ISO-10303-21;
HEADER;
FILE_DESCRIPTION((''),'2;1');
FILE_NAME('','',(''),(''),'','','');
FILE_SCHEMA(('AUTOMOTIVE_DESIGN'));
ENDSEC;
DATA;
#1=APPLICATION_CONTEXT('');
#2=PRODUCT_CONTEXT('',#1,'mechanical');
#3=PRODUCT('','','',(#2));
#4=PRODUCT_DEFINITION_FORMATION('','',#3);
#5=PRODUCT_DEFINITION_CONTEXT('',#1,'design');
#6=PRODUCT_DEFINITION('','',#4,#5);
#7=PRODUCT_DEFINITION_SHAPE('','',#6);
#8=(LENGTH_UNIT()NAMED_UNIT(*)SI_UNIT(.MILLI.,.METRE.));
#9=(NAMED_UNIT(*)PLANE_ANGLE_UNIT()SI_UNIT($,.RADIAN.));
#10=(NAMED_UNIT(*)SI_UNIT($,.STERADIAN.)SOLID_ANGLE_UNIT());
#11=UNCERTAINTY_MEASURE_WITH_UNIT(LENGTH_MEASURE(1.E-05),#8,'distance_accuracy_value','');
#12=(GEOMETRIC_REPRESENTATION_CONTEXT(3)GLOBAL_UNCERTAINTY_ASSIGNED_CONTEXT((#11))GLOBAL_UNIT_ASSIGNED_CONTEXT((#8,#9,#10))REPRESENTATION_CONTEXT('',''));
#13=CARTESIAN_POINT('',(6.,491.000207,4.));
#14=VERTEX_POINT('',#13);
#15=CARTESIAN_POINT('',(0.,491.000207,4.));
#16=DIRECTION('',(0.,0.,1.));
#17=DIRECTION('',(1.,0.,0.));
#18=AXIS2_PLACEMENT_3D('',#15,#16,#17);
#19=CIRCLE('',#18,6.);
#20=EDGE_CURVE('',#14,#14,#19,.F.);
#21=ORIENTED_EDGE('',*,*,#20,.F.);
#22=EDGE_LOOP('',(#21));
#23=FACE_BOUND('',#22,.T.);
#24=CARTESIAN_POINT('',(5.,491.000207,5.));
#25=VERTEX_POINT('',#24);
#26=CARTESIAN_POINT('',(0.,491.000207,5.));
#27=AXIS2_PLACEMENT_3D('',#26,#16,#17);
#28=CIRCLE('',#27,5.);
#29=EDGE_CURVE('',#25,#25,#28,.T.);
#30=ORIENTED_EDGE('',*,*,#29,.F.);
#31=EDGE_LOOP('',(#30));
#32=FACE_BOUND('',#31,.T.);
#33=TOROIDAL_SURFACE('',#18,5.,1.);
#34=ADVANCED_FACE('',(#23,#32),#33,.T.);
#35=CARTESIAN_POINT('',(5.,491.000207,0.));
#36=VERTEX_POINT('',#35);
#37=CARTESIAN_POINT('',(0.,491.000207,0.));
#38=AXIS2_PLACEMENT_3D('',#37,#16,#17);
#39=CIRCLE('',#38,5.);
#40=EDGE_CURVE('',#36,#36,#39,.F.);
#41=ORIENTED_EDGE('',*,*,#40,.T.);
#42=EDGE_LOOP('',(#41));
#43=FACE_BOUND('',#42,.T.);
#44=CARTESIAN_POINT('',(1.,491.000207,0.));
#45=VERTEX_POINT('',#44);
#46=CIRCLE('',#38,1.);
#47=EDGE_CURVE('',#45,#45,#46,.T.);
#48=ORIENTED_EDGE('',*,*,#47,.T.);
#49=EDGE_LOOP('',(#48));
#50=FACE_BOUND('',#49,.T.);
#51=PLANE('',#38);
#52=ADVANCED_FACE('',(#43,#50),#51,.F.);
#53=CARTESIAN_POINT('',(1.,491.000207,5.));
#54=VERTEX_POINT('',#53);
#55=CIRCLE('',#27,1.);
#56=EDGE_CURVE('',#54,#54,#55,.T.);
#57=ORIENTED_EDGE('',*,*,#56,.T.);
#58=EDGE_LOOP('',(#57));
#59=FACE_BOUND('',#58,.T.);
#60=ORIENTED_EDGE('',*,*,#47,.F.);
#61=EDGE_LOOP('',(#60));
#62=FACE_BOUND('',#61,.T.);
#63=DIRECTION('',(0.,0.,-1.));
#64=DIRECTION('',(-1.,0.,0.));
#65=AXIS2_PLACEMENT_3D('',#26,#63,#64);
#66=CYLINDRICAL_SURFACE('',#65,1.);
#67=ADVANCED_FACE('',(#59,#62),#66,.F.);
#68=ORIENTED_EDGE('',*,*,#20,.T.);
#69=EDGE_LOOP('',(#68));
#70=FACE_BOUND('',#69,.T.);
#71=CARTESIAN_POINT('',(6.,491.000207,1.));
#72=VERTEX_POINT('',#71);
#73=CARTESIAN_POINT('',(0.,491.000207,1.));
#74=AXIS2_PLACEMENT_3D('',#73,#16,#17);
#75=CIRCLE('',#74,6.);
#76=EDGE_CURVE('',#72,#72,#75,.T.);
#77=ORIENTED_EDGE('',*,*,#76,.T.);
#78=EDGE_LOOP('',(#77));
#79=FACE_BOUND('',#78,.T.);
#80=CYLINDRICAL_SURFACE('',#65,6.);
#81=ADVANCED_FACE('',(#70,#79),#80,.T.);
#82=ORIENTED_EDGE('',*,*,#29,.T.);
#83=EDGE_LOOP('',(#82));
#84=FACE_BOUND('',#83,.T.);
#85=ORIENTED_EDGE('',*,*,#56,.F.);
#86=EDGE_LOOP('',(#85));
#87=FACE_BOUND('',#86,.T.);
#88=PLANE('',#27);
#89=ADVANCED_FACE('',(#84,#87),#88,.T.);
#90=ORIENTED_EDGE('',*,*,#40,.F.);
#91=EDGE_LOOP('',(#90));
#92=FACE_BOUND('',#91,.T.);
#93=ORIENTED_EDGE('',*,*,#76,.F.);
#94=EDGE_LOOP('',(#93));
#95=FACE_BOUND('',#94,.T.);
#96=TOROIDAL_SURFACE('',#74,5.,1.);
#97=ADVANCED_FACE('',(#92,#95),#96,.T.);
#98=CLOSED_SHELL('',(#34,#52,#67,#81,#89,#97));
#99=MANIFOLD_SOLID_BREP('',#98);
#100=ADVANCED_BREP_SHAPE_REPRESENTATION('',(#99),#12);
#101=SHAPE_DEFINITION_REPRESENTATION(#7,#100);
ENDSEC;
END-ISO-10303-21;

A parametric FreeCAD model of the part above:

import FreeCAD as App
import Part
import Sketcher

V = App.Vector


def edges_at(feature, points):
    """Names of the edges that pass closest to the given points."""
    edges = feature.Shape.Edges
    near = lambda p: min(range(len(edges)), key=lambda i: edges[i].distToShape(Part.Vertex(*p))[0])
    return sorted({f"Edge{near(p) + 1}" for p in points})

doc = App.newDocument("Part")
body = doc.addObject("PartDesign::Body", "Body")

# Sketch on XY plane
sketch1 = body.newObject("Sketcher::SketchObject", "Sketch")
sketch1.AttachmentSupport = (doc.getObject("XY_Plane"), [""])
sketch1.MapMode = "FlatFace"
sketch1.addGeometry([
    Part.Circle(V(0, 491.000207, 0), V(0, 0, 1), 6),
    Part.Circle(V(0, 491.000207, 0), V(0, 0, 1), 1),
], False)
sketch1.addConstraint([
    Sketcher.Constraint("Coincident", 1, 3, 0, 3),
    Sketcher.Constraint("PointOnObject", 0, 3, -2),
    Sketcher.Constraint("Diameter", 0, 12.0),
    Sketcher.Constraint("Diameter", 1, 2.0),
    Sketcher.Constraint("DistanceY", -1, 1, 0, 3, 491.000207),
])
pad1 = body.newObject("PartDesign::Pad", "Pad")
pad1.Profile = sketch1
pad1.Length = 5
doc.recompute()

fillet = body.newObject("PartDesign::Fillet", "Fillet")
fillet.Base = (pad1, edges_at(pad1, [(-6, 491, 0), (-6, 491, 5)]))
fillet.Radius = 1

doc.recompute()
